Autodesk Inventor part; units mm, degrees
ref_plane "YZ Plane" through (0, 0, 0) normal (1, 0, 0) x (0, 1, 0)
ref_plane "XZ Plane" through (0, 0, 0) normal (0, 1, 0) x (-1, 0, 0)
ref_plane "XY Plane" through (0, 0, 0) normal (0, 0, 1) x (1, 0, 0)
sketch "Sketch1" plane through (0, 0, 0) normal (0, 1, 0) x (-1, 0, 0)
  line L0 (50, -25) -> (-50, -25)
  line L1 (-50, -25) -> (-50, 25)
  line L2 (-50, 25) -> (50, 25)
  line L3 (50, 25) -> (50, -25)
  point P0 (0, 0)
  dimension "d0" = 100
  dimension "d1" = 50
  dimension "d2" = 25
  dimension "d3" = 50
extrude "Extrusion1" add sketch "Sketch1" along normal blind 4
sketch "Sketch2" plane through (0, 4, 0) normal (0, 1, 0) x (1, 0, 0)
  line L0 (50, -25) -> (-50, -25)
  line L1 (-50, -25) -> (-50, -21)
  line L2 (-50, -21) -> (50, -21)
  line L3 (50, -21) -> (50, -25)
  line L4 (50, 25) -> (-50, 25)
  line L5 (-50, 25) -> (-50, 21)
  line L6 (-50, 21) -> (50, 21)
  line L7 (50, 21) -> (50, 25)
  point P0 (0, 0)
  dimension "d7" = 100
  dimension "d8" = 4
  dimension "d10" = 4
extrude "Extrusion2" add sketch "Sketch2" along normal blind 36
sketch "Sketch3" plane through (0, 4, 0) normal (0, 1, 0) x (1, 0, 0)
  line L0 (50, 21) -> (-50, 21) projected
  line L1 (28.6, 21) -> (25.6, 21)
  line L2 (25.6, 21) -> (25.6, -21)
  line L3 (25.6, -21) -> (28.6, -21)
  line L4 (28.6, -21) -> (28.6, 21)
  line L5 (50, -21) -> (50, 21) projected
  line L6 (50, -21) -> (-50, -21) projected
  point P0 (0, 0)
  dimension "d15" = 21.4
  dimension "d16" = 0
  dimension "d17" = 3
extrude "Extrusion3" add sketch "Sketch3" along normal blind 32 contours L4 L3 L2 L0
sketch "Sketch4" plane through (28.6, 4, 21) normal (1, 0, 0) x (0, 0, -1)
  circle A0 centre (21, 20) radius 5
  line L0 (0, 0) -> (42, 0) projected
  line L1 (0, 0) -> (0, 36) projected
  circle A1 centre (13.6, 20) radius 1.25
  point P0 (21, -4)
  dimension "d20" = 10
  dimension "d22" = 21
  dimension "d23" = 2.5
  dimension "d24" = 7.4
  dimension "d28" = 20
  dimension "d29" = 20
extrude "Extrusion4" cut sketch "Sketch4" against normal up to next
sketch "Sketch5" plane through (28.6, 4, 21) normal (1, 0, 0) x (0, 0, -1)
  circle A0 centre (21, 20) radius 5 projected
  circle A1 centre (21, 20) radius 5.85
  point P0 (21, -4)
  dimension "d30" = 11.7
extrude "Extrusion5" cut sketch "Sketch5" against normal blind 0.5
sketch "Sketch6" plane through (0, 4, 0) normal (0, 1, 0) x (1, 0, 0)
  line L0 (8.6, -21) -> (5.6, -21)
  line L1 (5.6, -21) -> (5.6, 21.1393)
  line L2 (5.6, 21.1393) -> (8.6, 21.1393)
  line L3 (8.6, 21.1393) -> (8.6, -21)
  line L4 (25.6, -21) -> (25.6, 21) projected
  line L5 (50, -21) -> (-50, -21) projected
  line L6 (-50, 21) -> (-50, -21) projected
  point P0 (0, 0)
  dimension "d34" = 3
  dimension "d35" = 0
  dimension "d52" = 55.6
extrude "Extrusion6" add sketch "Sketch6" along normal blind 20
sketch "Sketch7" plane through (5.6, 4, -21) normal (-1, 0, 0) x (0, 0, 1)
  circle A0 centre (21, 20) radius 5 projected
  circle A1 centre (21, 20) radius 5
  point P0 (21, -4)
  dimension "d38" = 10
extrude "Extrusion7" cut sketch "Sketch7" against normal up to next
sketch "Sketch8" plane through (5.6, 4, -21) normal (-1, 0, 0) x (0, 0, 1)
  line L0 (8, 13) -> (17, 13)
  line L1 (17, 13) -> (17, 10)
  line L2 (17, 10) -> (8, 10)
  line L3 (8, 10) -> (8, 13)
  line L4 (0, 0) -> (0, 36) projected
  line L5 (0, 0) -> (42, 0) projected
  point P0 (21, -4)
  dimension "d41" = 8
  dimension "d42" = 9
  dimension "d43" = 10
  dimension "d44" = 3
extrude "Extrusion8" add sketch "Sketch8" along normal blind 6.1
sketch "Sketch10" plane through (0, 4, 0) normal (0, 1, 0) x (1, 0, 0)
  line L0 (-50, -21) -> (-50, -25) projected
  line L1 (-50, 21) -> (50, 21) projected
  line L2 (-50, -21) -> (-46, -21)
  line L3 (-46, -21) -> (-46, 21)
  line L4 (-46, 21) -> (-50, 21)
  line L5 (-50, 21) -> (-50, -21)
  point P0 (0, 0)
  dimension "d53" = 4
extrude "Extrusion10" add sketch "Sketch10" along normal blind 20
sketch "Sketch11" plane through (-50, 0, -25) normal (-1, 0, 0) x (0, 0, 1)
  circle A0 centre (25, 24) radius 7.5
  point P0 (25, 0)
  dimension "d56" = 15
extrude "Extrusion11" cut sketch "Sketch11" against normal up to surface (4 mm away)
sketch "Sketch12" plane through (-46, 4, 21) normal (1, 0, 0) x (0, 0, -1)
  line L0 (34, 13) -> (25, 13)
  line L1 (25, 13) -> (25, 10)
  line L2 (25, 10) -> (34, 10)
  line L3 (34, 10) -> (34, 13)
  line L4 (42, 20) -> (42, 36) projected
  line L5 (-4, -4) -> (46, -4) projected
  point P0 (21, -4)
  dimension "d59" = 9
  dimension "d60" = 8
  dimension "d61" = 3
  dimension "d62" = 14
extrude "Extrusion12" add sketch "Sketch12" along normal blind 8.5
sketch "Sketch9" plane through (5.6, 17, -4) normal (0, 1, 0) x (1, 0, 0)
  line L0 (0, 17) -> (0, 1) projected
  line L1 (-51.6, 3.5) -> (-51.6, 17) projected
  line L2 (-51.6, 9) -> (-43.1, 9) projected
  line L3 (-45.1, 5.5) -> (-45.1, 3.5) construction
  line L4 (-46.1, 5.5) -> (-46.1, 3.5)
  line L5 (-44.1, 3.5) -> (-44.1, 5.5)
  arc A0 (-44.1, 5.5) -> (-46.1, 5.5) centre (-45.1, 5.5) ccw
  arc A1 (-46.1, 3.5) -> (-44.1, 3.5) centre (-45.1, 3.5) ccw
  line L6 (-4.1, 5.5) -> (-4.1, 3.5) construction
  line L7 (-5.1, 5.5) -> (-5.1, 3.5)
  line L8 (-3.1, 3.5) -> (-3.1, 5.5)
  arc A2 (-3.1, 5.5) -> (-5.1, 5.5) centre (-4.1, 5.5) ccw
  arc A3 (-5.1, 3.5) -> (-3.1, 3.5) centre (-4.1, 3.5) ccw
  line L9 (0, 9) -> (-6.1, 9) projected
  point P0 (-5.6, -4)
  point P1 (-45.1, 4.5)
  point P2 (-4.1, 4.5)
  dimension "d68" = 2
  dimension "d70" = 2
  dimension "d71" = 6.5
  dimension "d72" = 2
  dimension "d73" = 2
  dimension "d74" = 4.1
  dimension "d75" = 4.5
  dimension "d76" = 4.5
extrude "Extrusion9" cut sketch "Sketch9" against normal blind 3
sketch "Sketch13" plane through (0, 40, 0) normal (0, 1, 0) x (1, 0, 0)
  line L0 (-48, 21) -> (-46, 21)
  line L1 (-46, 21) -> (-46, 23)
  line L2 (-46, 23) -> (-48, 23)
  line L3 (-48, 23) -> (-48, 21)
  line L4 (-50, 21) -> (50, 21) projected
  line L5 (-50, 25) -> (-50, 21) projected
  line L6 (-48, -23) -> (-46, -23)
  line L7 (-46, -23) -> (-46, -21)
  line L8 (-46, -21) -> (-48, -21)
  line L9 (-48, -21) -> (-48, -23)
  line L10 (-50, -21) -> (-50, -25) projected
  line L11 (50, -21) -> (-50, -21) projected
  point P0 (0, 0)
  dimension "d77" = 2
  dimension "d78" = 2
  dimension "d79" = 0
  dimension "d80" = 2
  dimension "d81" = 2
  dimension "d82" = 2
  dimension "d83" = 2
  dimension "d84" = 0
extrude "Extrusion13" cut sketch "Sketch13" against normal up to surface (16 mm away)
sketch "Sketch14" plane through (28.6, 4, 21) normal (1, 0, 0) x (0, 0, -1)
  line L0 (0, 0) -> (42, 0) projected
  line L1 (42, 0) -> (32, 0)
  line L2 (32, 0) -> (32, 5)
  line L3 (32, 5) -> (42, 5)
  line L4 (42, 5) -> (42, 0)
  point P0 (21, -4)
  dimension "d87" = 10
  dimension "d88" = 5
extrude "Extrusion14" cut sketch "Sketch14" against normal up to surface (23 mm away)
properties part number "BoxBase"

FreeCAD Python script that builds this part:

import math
import FreeCAD as App
import Part
import Sketcher
from FreeCAD import Vector
Q = App.Units.Quantity

doc = App.newDocument("Part")
body = doc.addObject("PartDesign::Body", "Body")

sketch1 = body.newObject("Sketcher::SketchObject", "Sketch")
sketch1.AttachmentSupport = (doc.getObject("XZ_Plane"), [""])
sketch1.MapMode = "FlatFace"
sketch1.addGeometry([
    Part.LineSegment(Vector(50, -25, 0), Vector(-50, -25, 0)),
    Part.LineSegment(Vector(-50, -25, 0), Vector(-50, 25, 0)),
    Part.LineSegment(Vector(-50, 25, 0), Vector(50, 25, 0)),
    Part.LineSegment(Vector(50, 25, 0), Vector(50, -25, 0)),
], False)
sketch1.addConstraint([
    Sketcher.Constraint("Coincident", 0, 2, 1, 1),
    Sketcher.Constraint("Coincident", 1, 2, 2, 1),
    Sketcher.Constraint("Coincident", 2, 2, 3, 1),
    Sketcher.Constraint("Coincident", 3, 2, 0, 1),
    Sketcher.Constraint("Horizontal", 0),
    Sketcher.Constraint("Vertical", 1),
    Sketcher.Constraint("Horizontal", 2),
    Sketcher.Constraint("Vertical", 3),
    Sketcher.Constraint("Symmetric", 0, 2, 2, 2, -1, 1),
    Sketcher.Constraint("DistanceX", 0, 2, 0, 1, Q("100 mm")),
    Sketcher.Constraint("DistanceY", 1, 1, 1, 2, Q("50 mm")),
])
pad1 = body.newObject("PartDesign::Pad", "Pad")
pad1.Profile = sketch1
pad1.Length = 4
pad1.Reversed = True

sketch2 = body.newObject("Sketcher::SketchObject", "Sketch001")
sketch2.AttachmentSupport = (doc.getObject("XZ_Plane"), [""])
sketch2.MapMode = "FlatFace"
sketch2.AttachmentOffset = App.Placement(Vector(0, 0, -4), App.Rotation())
sketch2.addGeometry([
    Part.LineSegment(Vector(-50, 25, 0), Vector(50, 25, 0)),
    Part.LineSegment(Vector(50, 25, 0), Vector(50, 21, 0)),
    Part.LineSegment(Vector(50, 21, 0), Vector(-50, 21, 0)),
    Part.LineSegment(Vector(-50, 21, 0), Vector(-50, 25, 0)),
    Part.LineSegment(Vector(50, -21, 0), Vector(50, -25, 0)),
    Part.LineSegment(Vector(50, -25, 0), Vector(-50, -25, 0)),
    Part.LineSegment(Vector(-50, -25, 0), Vector(-50, -21, 0)),
    Part.LineSegment(Vector(-50, -21, 0), Vector(50, -21, 0)),
], False)
sketch2.addConstraint([
    Sketcher.Constraint("Coincident", 0, 2, 1, 1),
    Sketcher.Constraint("Coincident", 1, 2, 2, 1),
    Sketcher.Constraint("Coincident", 2, 2, 3, 1),
    Sketcher.Constraint("Coincident", 3, 2, 0, 1),
    Sketcher.Constraint("Coincident", 4, 2, 5, 1),
    Sketcher.Constraint("Coincident", 5, 2, 6, 1),
    Sketcher.Constraint("Coincident", 6, 2, 7, 1),
    Sketcher.Constraint("Coincident", 7, 2, 4, 1),
    Sketcher.Constraint("Horizontal", 0),
    Sketcher.Constraint("Vertical", 1),
    Sketcher.Constraint("Horizontal", 2),
    Sketcher.Constraint("Vertical", 3),
    Sketcher.Constraint("Vertical", 4),
    Sketcher.Constraint("Horizontal", 5),
    Sketcher.Constraint("Vertical", 6),
    Sketcher.Constraint("Horizontal", 7),
    Sketcher.Constraint("Symmetric", 3, 2, 4, 2, -1, 1),
    Sketcher.Constraint("Symmetric", 1, 2, 6, 2, -1, 1),
    Sketcher.Constraint("Vertical", 1, 2, 4, 2),
    Sketcher.Constraint("DistanceX", 0, 1, 0, 2, Q("100 mm")),
    Sketcher.Constraint("DistanceY", 1, 2, 1, 1, Q("4 mm")),
    Sketcher.Constraint("DistanceY", -1, 1, 0, 2, Q("25 mm")),
])
pad2 = body.newObject("PartDesign::Pad", "Pad001")
pad2.Profile = sketch2
pad2.Length = 36
pad2.Reversed = True

sketch3 = body.newObject("Sketcher::SketchObject", "Sketch002")
sketch3.AttachmentSupport = (doc.getObject("XZ_Plane"), [""])
sketch3.MapMode = "FlatFace"
sketch3.AttachmentOffset = App.Placement(Vector(0, 0, -4), App.Rotation())
sketch3.addGeometry([
    Part.LineSegment(Vector(28.6, 21, 0), Vector(28.6, -21, 0)),
    Part.LineSegment(Vector(28.6, -21, 0), Vector(25.6, -21, 0)),
    Part.LineSegment(Vector(25.6, -21, 0), Vector(25.6, 21, 0)),
    Part.LineSegment(Vector(25.6, 21, 0), Vector(28.6, 21, 0)),
], False)
sketch3.addConstraint([
    Sketcher.Constraint("Coincident", 0, 2, 1, 1),
    Sketcher.Constraint("Coincident", 1, 2, 2, 1),
    Sketcher.Constraint("Coincident", 2, 2, 3, 1),
    Sketcher.Constraint("Coincident", 3, 2, 0, 1),
    Sketcher.Constraint("Vertical", 0),
    Sketcher.Constraint("Horizontal", 1),
    Sketcher.Constraint("Vertical", 2),
    Sketcher.Constraint("Horizontal", 3),
    Sketcher.Constraint("DistanceX", 1, 2, 1, 1, Q("3 mm")),
    Sketcher.Constraint("DistanceY", 0, 2, 0, 1, Q("42 mm")),
    Sketcher.Constraint("DistanceY", 0, 2, -1, 1, Q("21 mm")),
    Sketcher.Constraint("DistanceX", -1, 1, 0, 2, Q("28.6 mm")),
])
pad3 = body.newObject("PartDesign::Pad", "Pad002")
pad3.Profile = sketch3
pad3.Length = 32
pad3.Reversed = True

sketch4 = body.newObject("Sketcher::SketchObject", "Sketch003")
sketch4.AttachmentSupport = (doc.getObject("YZ_Plane"), [""])
sketch4.MapMode = "FlatFace"
sketch4.AttachmentOffset = App.Placement(Vector(0, 0, 28.6), App.Rotation())
sketch4.addGeometry([
    Part.Circle(Vector(24, 0, 0), Vector(0, 0, 1), 5),
    Part.Circle(Vector(24, 7.4, 0), Vector(0, 0, 1), 1.2),
], False)
sketch4.addConstraint([
    Sketcher.Constraint("PointOnObject", 0, 3, -1),
    Sketcher.Constraint("Vertical", 0, 3, 1, 3),
    Sketcher.Constraint("Diameter", 0, Q("10 mm")),
    Sketcher.Constraint("Diameter", 1, Q("2.5 mm")),
    Sketcher.Constraint("DistanceY", -1, 1, 1, 3, Q("7.4 mm")),
    Sketcher.Constraint("DistanceX", -1, 1, 0, 3, Q("24 mm")),
])
pocket1 = body.newObject("PartDesign::Pocket", "Pocket")
pocket1.Profile = sketch4
pocket1.Type = "UpToFirst"

sketch5 = body.newObject("Sketcher::SketchObject", "Sketch004")
sketch5.AttachmentSupport = (doc.getObject("YZ_Plane"), [""])
sketch5.MapMode = "FlatFace"
sketch5.AttachmentOffset = App.Placement(Vector(0, 0, 28.6), App.Rotation())
sketch5.addGeometry([
    Part.Circle(Vector(24, 0, 0), Vector(0, 0, 1), 6),
    Part.Circle(Vector(24, 0, 0), Vector(0, 0, 1), 5),
], False)
sketch5.addConstraint([
    Sketcher.Constraint("Coincident", 1, 3, 0, 3),
    Sketcher.Constraint("PointOnObject", 0, 3, -1),
    Sketcher.Constraint("Diameter", 0, Q("11.7 mm")),
    Sketcher.Constraint("Diameter", 1, Q("10 mm")),
    Sketcher.Constraint("DistanceX", -1, 1, 0, 3, Q("24 mm")),
])
pocket2 = body.newObject("PartDesign::Pocket", "Pocket001")
pocket2.Profile = sketch5
pocket2.Length = 0.5

sketch6 = body.newObject("Sketcher::SketchObject", "Sketch005")
sketch6.AttachmentSupport = (doc.getObject("XZ_Plane"), [""])
sketch6.MapMode = "FlatFace"
sketch6.AttachmentOffset = App.Placement(Vector(0, 0, -4), App.Rotation())
sketch6.addGeometry([
    Part.LineSegment(Vector(5.6, 21, 0), Vector(8.6, 21, 0)),
    Part.LineSegment(Vector(8.6, 21, 0), Vector(8.6, -21.1, 0)),
    Part.LineSegment(Vector(8.6, -21.1, 0), Vector(5.6, -21.1, 0)),
    Part.LineSegment(Vector(5.6, -21.1, 0), Vector(5.6, 21, 0)),
], False)
sketch6.addConstraint([
    Sketcher.Constraint("Coincident", 0, 2, 1, 1),
    Sketcher.Constraint("Coincident", 1, 2, 2, 1),
    Sketcher.Constraint("Coincident", 2, 2, 3, 1),
    Sketcher.Constraint("Coincident", 3, 2, 0, 1),
    Sketcher.Constraint("Horizontal", 0),
    Sketcher.Constraint("Vertical", 1),
    Sketcher.Constraint("Horizontal", 2),
    Sketcher.Constraint("Vertical", 3),
    Sketcher.Constraint("DistanceX", 0, 1, 0, 2, Q("3 mm")),
    Sketcher.Constraint("DistanceY", -1, 1, 0, 2, Q("21 mm")),
    Sketcher.Constraint("DistanceX", -1, 1, 0, 2, Q("8.6 mm")),
    Sketcher.Constraint("DistanceY", 1, 2, 1, 1, Q("42.1393 mm")),
])
pad4 = body.newObject("PartDesign::Pad", "Pad003")
pad4.Profile = sketch6
pad4.Length = 20
pad4.Reversed = True

sketch7 = body.newObject("Sketcher::SketchObject", "Sketch006")
sketch7.AttachmentSupport = (doc.getObject("YZ_Plane"), [""])
sketch7.MapMode = "FlatFace"
sketch7.AttachmentOffset = App.Placement(Vector(0, 0, 5.6), App.Rotation())
sketch7.addGeometry(Part.Circle(Vector(24, 0, 0), Vector(0, 0, 1), 5), False)
sketch7.addConstraint([
    Sketcher.Constraint("PointOnObject", 0, 3, -1),
    Sketcher.Constraint("Diameter", 0, Q("10 mm")),
    Sketcher.Constraint("DistanceX", -1, 1, 0, 3, Q("24 mm")),
])
pocket3 = body.newObject("PartDesign::Pocket", "Pocket002")
pocket3.Profile = sketch7
pocket3.Type = "UpToFirst"
pocket3.Reversed = True

sketch8 = body.newObject("Sketcher::SketchObject", "Sketch007")
sketch8.AttachmentSupport = (doc.getObject("YZ_Plane"), [""])
sketch8.MapMode = "FlatFace"
sketch8.AttachmentOffset = App.Placement(Vector(0, 0, 5.6), App.Rotation())
sketch8.addGeometry([
    Part.LineSegment(Vector(17, -4, 0), Vector(17, -13, 0)),
    Part.LineSegment(Vector(17, -13, 0), Vector(14, -13, 0)),
    Part.LineSegment(Vector(14, -13, 0), Vector(14, -4, 0)),
    Part.LineSegment(Vector(14, -4, 0), Vector(17, -4, 0)),
], False)
sketch8.addConstraint([
    Sketcher.Constraint("Coincident", 0, 2, 1, 1),
    Sketcher.Constraint("Coincident", 1, 2, 2, 1),
    Sketcher.Constraint("Coincident", 2, 2, 3, 1),
    Sketcher.Constraint("Coincident", 3, 2, 0, 1),
    Sketcher.Constraint("Vertical", 0),
    Sketcher.Constraint("Horizontal", 1),
    Sketcher.Constraint("Vertical", 2),
    Sketcher.Constraint("Horizontal", 3),
    Sketcher.Constraint("DistanceX", 1, 2, 1, 1, Q("3 mm")),
    Sketcher.Constraint("DistanceY", 0, 2, 0, 1, Q("9 mm")),
    Sketcher.Constraint("DistanceX", -1, 1, 0, 2, Q("17 mm")),
    Sketcher.Constraint("DistanceY", 0, 2, -1, 1, Q("13 mm")),
])
pad5 = body.newObject("PartDesign::Pad", "Pad004")
pad5.Profile = sketch8
pad5.Length = 6.1
pad5.Reversed = True

sketch9 = body.newObject("Sketcher::SketchObject", "Sketch008")
sketch9.AttachmentSupport = (doc.getObject("XZ_Plane"), [""])
sketch9.MapMode = "FlatFace"
sketch9.AttachmentOffset = App.Placement(Vector(0, 0, -4), App.Rotation())
sketch9.addGeometry([
    Part.LineSegment(Vector(-46, -21, 0), Vector(-50, -21, 0)),
    Part.LineSegment(Vector(-50, -21, 0), Vector(-50, 21, 0)),
    Part.LineSegment(Vector(-50, 21, 0), Vector(-46, 21, 0)),
    Part.LineSegment(Vector(-46, 21, 0), Vector(-46, -21, 0)),
], False)
sketch9.addConstraint([
    Sketcher.Constraint("Coincident", 0, 2, 1, 1),
    Sketcher.Constraint("Coincident", 1, 2, 2, 1),
    Sketcher.Constraint("Coincident", 2, 2, 3, 1),
    Sketcher.Constraint("Coincident", 3, 2, 0, 1),
    Sketcher.Constraint("Horizontal", 0),
    Sketcher.Constraint("Vertical", 1),
    Sketcher.Constraint("Horizontal", 2),
    Sketcher.Constraint("Vertical", 3),
    Sketcher.Constraint("DistanceX", 0, 2, 0, 1, Q("4 mm")),
    Sketcher.Constraint("DistanceY", 1, 1, 1, 2, Q("42 mm")),
    Sketcher.Constraint("DistanceX", 0, 2, -1, 1, Q("50 mm")),
    Sketcher.Constraint("DistanceY", 0, 2, -1, 1, Q("21 mm")),
])
pad6 = body.newObject("PartDesign::Pad", "Pad005")
pad6.Profile = sketch9
pad6.Length = 20
pad6.Reversed = True

sketch10 = body.newObject("Sketcher::SketchObject", "Sketch009")
sketch10.AttachmentSupport = (doc.getObject("YZ_Plane"), [""])
sketch10.MapMode = "FlatFace"
sketch10.AttachmentOffset = App.Placement(Vector(0, 0, -50), App.Rotation())
sketch10.addGeometry(Part.Circle(Vector(24, 0, 0), Vector(0, 0, 1), 8), False)
sketch10.addConstraint([
    Sketcher.Constraint("PointOnObject", 0, 3, -1),
    Sketcher.Constraint("Diameter", 0, Q("15 mm")),
    Sketcher.Constraint("DistanceX", -1, 1, 0, 3, Q("24 mm")),
])
pocket4 = body.newObject("PartDesign::Pocket", "Pocket003")
pocket4.Profile = sketch10
pocket4.Length = 4
pocket4.Reversed = True

sketch11 = body.newObject("Sketcher::SketchObject", "Sketch010")
sketch11.AttachmentSupport = (doc.getObject("YZ_Plane"), [""])
sketch11.MapMode = "FlatFace"
sketch11.AttachmentOffset = App.Placement(Vector(0, 0, -46), App.Rotation())
sketch11.addGeometry([
    Part.LineSegment(Vector(14, -13, 0), Vector(17, -13, 0)),
    Part.LineSegment(Vector(17, -13, 0), Vector(17, -4, 0)),
    Part.LineSegment(Vector(17, -4, 0), Vector(14, -4, 0)),
    Part.LineSegment(Vector(14, -4, 0), Vector(14, -13, 0)),
], False)
sketch11.addConstraint([
    Sketcher.Constraint("Coincident", 0, 2, 1, 1),
    Sketcher.Constraint("Coincident", 1, 2, 2, 1),
    Sketcher.Constraint("Coincident", 2, 2, 3, 1),
    Sketcher.Constraint("Coincident", 3, 2, 0, 1),
    Sketcher.Constraint("Horizontal", 0),
    Sketcher.Constraint("Vertical", 1),
    Sketcher.Constraint("Horizontal", 2),
    Sketcher.Constraint("Vertical", 3),
    Sketcher.Constraint("DistanceX", 0, 1, 0, 2, Q("3 mm")),
    Sketcher.Constraint("DistanceY", 1, 1, 1, 2, Q("9 mm")),
    Sketcher.Constraint("DistanceX", -1, 1, 2, 2, Q("14 mm")),
    Sketcher.Constraint("DistanceY", 0, 2, -1, 1, Q("13 mm")),
])
pad7 = body.newObject("PartDesign::Pad", "Pad006")
pad7.Profile = sketch11
pad7.Length = 8.5

sketch12 = body.newObject("Sketcher::SketchObject", "Sketch011")
sketch12.AttachmentSupport = (doc.getObject("XZ_Plane"), [""])
sketch12.MapMode = "FlatFace"
sketch12.AttachmentOffset = App.Placement(Vector(0, 0, -17), App.Rotation())
sketch12.addGeometry([
    Part.ArcOfCircle(Part.Circle(Vector(-39.5, -9.5, 0), Vector(0, 0, 1), 1), math.radians(180), math.radians(360)),
    Part.LineSegment(Vector(-40.5, -9.5, 0), Vector(-40.5, -7.5, 0)),
    Part.ArcOfCircle(Part.Circle(Vector(-39.5, -7.5, 0), Vector(0, 0, 1), 1), math.radians(0), math.radians(180)),
    Part.LineSegment(Vector(-38.5, -7.5, 0), Vector(-38.5, -9.5, 0)),
    Part.ArcOfCircle(Part.Circle(Vector(1.5, -9.5, 0), Vector(0, 0, 1), 1), math.radians(180), math.radians(360)),
    Part.LineSegment(Vector(0.5, -9.5, 0), Vector(0.5, -7.5, 0)),
    Part.ArcOfCircle(Part.Circle(Vector(1.5, -7.5, 0), Vector(0, 0, 1), 1), math.radians(0), math.radians(180)),
    Part.LineSegment(Vector(2.5, -7.5, 0), Vector(2.5, -9.5, 0)),
], False)
sketch12.addConstraint([
    Sketcher.Constraint("Tangent", 0, 1, 1, 1),
    Sketcher.Constraint("Tangent", 1, 2, 2, 2),
    Sketcher.Constraint("Tangent", 2, 1, 3, 1),
    Sketcher.Constraint("Tangent", 3, 2, 0, 2),
    Sketcher.Constraint("Tangent", 4, 1, 5, 1),
    Sketcher.Constraint("Tangent", 5, 2, 6, 2),
    Sketcher.Constraint("Tangent", 6, 1, 7, 1),
    Sketcher.Constraint("Tangent", 7, 2, 4, 2),
    Sketcher.Constraint("Vertical", 1),
    Sketcher.Constraint("Vertical", 3),
    Sketcher.Constraint("Vertical", 5),
    Sketcher.Constraint("Vertical", 7),
    Sketcher.Constraint("Equal", 2, 4),
    Sketcher.Constraint("Horizontal", 0, 3, 4, 3),
    Sketcher.Constraint("Horizontal", 2, 3, 6, 3),
    Sketcher.Constraint("Radius", 0, Q("1 mm")),
    Sketcher.Constraint("DistanceY", 1, 1, 1, 2, Q("2 mm")),
    Sketcher.Constraint("DistanceX", 0, 3, 4, 3, Q("41 mm")),
    Sketcher.Constraint("DistanceX", 0, 3, -1, 1, Q("39.5 mm")),
    Sketcher.Constraint("DistanceY", 0, 3, -1, 1, Q("9.5 mm")),
])
pocket5 = body.newObject("PartDesign::Pocket", "Pocket004")
pocket5.Profile = sketch12
pocket5.Length = 3
pocket5.Reversed = True

sketch13 = body.newObject("Sketcher::SketchObject", "Sketch012")
sketch13.AttachmentSupport = (doc.getObject("XZ_Plane"), [""])
sketch13.MapMode = "FlatFace"
sketch13.AttachmentOffset = App.Placement(Vector(0, 0, -40), App.Rotation())
sketch13.addGeometry([
    Part.LineSegment(Vector(-48, -23, 0), Vector(-48, -21, 0)),
    Part.LineSegment(Vector(-48, -21, 0), Vector(-46, -21, 0)),
    Part.LineSegment(Vector(-46, -21, 0), Vector(-46, -23, 0)),
    Part.LineSegment(Vector(-46, -23, 0), Vector(-48, -23, 0)),
    Part.LineSegment(Vector(-48, 21, 0), Vector(-48, 23, 0)),
    Part.LineSegment(Vector(-48, 23, 0), Vector(-46, 23, 0)),
    Part.LineSegment(Vector(-46, 23, 0), Vector(-46, 21, 0)),
    Part.LineSegment(Vector(-46, 21, 0), Vector(-48, 21, 0)),
], False)
sketch13.addConstraint([
    Sketcher.Constraint("Coincident", 0, 2, 1, 1),
    Sketcher.Constraint("Coincident", 1, 2, 2, 1),
    Sketcher.Constraint("Coincident", 2, 2, 3, 1),
    Sketcher.Constraint("Coincident", 3, 2, 0, 1),
    Sketcher.Constraint("Coincident", 4, 2, 5, 1),
    Sketcher.Constraint("Coincident", 5, 2, 6, 1),
    Sketcher.Constraint("Coincident", 6, 2, 7, 1),
    Sketcher.Constraint("Coincident", 7, 2, 4, 1),
    Sketcher.Constraint("Vertical", 0),
    Sketcher.Constraint("Horizontal", 1),
    Sketcher.Constraint("Vertical", 2),
    Sketcher.Constraint("Horizontal", 3),
    Sketcher.Constraint("Vertical", 4),
    Sketcher.Constraint("Horizontal", 5),
    Sketcher.Constraint("Vertical", 6),
    Sketcher.Constraint("Horizontal", 7),
    Sketcher.Constraint("Symmetric", 3, 2, 4, 2, -1),
    Sketcher.Constraint("Symmetric", 1, 2, 6, 2, -1),
    Sketcher.Constraint("Equal", 7, 0),
    Sketcher.Constraint("DistanceX", 1, 1, 1, 2, Q("2 mm")),
    Sketcher.Constraint("DistanceX", 0, 2, -1, 1, Q("48 mm")),
    Sketcher.Constraint("DistanceY", 0, 2, -1, 1, Q("21 mm")),
])
pocket6 = body.newObject("PartDesign::Pocket", "Pocket005")
pocket6.Profile = sketch13
pocket6.Length = 16
pocket6.Reversed = True

sketch14 = body.newObject("Sketcher::SketchObject", "Sketch013")
sketch14.AttachmentSupport = (doc.getObject("YZ_Plane"), [""])
sketch14.MapMode = "FlatFace"
sketch14.AttachmentOffset = App.Placement(Vector(0, 0, 28.6), App.Rotation())
sketch14.addGeometry([
    Part.LineSegment(Vector(9, -11, 0), Vector(4, -11, 0)),
    Part.LineSegment(Vector(4, -11, 0), Vector(4, -21, 0)),
    Part.LineSegment(Vector(4, -21, 0), Vector(9, -21, 0)),
    Part.LineSegment(Vector(9, -21, 0), Vector(9, -11, 0)),
], False)
sketch14.addConstraint([
    Sketcher.Constraint("Coincident", 0, 2, 1, 1),
    Sketcher.Constraint("Coincident", 1, 2, 2, 1),
    Sketcher.Constraint("Coincident", 2, 2, 3, 1),
    Sketcher.Constraint("Coincident", 3, 2, 0, 1),
    Sketcher.Constraint("Horizontal", 0),
    Sketcher.Constraint("Vertical", 1),
    Sketcher.Constraint("Horizontal", 2),
    Sketcher.Constraint("Vertical", 3),
    Sketcher.Constraint("DistanceX", 0, 2, 0, 1, Q("5 mm")),
    Sketcher.Constraint("DistanceY", 1, 2, 1, 1, Q("10 mm")),
    Sketcher.Constraint("DistanceX", -1, 1, 0, 2, Q("4 mm")),
    Sketcher.Constraint("DistanceY", 0, 2, -1, 1, Q("11 mm")),
])
pocket7 = body.newObject("PartDesign::Pocket", "Pocket006")
pocket7.Profile = sketch14
pocket7.Length = 23

doc.recompute()
